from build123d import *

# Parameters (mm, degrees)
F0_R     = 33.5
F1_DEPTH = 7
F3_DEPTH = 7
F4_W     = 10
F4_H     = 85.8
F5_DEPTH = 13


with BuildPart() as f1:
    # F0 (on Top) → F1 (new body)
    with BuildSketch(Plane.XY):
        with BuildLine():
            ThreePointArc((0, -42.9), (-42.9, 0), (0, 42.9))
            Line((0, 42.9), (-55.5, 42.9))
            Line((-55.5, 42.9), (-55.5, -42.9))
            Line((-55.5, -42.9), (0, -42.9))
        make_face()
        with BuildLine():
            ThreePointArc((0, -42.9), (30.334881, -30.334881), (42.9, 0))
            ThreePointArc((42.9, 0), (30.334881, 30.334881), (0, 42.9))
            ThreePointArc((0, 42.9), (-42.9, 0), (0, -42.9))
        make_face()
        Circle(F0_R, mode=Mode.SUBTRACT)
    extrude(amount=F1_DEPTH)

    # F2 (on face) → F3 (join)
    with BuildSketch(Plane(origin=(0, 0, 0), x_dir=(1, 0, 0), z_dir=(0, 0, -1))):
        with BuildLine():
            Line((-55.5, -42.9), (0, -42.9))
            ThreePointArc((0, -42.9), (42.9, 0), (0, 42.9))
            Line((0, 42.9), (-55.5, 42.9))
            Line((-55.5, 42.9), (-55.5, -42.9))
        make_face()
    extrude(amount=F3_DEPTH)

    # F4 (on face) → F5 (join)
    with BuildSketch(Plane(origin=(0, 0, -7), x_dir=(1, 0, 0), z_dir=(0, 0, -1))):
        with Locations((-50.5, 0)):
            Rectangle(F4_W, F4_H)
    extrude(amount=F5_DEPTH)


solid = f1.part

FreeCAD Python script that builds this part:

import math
import FreeCAD as App
import Part
import Sketcher

V = App.Vector
Q = App.Units.Quantity

doc = App.newDocument("Part")
body = doc.addObject("PartDesign::Body", "Body")

sketch1 = body.newObject("Sketcher::SketchObject", "Sketch")
sketch1.AttachmentSupport = (doc.getObject("XY_Plane"), [""])
sketch1.MapMode = "FlatFace"
sketch1.addGeometry([
    Part.LineSegment(V(0, 43, 0), V(-56, 43, 0)),
    Part.LineSegment(V(-56, 43, 0), V(-56, -43, 0)),
    Part.LineSegment(V(-56, -43, 0), V(0, -43, 0)),
    Part.ArcOfCircle(Part.Circle(V(0, 0, 0), V(0, 0, 1), 43), math.radians(-90), math.radians(0)),
    Part.ArcOfCircle(Part.Circle(V(0, 0, 0), V(0, 0, 1), 43), math.radians(0), math.radians(90)),
    Part.Circle(V(0, 0, 0), V(0, 0, 1), 34),
], False)
sketch1.addConstraint([
    Sketcher.Constraint("Coincident", 0, 2, 1, 1),
    Sketcher.Constraint("Coincident", 1, 2, 2, 1),
    Sketcher.Constraint("Tangent", 2, 2, 3, 1),
    Sketcher.Constraint("Tangent", 3, 2, 4, 1),
    Sketcher.Constraint("Tangent", 4, 2, 0, 1),
    Sketcher.Constraint("Horizontal", 0),
    Sketcher.Constraint("Vertical", 1),
    Sketcher.Constraint("Horizontal", 2),
    Sketcher.Constraint("Coincident", 3, 3, -1, 1),
    Sketcher.Constraint("Coincident", 5, 3, -1, 1),
    Sketcher.Constraint("Equal", 3, 4),
    Sketcher.Constraint("PointOnObject", 3, 2, -1),
    Sketcher.Constraint("Diameter", 5, Q("67 mm")),
    Sketcher.Constraint("Radius", 3, Q("42.9 mm")),
    Sketcher.Constraint("DistanceX", 0, 2, 0, 1, Q("55.5 mm")),
])
pad1 = body.newObject("PartDesign::Pad", "Pad")
pad1.Profile = sketch1
pad1.Length = 7

sketch2 = body.newObject("Sketcher::SketchObject", "Sketch001")
sketch2.AttachmentSupport = (doc.getObject("XY_Plane"), [""])
sketch2.MapMode = "FlatFace"
sketch2.addGeometry([
    Part.LineSegment(V(-56, 43, 0), V(0, 43, 0)),
    Part.ArcOfCircle(Part.Circle(V(0, 0, 0), V(0, 0, 1), 43), math.radians(-90), math.radians(90)),
    Part.LineSegment(V(0, -43, 0), V(-56, -43, 0)),
    Part.LineSegment(V(-56, -43, 0), V(-56, 43, 0)),
], False)
sketch2.addConstraint([
    Sketcher.Constraint("Tangent", 0, 2, 1, 2),
    Sketcher.Constraint("Tangent", 1, 1, 2, 1),
    Sketcher.Constraint("Coincident", 2, 2, 3, 1),
    Sketcher.Constraint("Coincident", 3, 2, 0, 1),
    Sketcher.Constraint("Horizontal", 0),
    Sketcher.Constraint("Horizontal", 2),
    Sketcher.Constraint("Vertical", 3),
    Sketcher.Constraint("Coincident", 1, 3, -1, 1),
    Sketcher.Constraint("Radius", 1, Q("42.9 mm")),
    Sketcher.Constraint("DistanceX", 0, 1, 0, 2, Q("55.5 mm")),
])
pad2 = body.newObject("PartDesign::Pad", "Pad001")
pad2.Profile = sketch2
pad2.Length = 7
pad2.Reversed = True

sketch3 = body.newObject("Sketcher::SketchObject", "Sketch002")
sketch3.AttachmentSupport = (doc.getObject("XY_Plane"), [""])
sketch3.MapMode = "FlatFace"
sketch3.AttachmentOffset = App.Placement(V(0, 0, -7), App.Rotation())
sketch3.addGeometry([
    Part.LineSegment(V(-56, -43, 0), V(-56, 43, 0)),
    Part.LineSegment(V(-56, 43, 0), V(-46, 43, 0)),
    Part.LineSegment(V(-46, 43, 0), V(-46, -43, 0)),
    Part.LineSegment(V(-46, -43, 0), V(-56, -43, 0)),
], False)
sketch3.addConstraint([
    Sketcher.Constraint("Coincident", 0, 2, 1, 1),
    Sketcher.Constraint("Coincident", 1, 2, 2, 1),
    Sketcher.Constraint("Coincident", 2, 2, 3, 1),
    Sketcher.Constraint("Coincident", 3, 2, 0, 1),
    Sketcher.Constraint("Vertical", 0),
    Sketcher.Constraint("Horizontal", 1),
    Sketcher.Constraint("Vertical", 2),
    Sketcher.Constraint("Horizontal", 3),
    Sketcher.Constraint("DistanceX", 1, 1, 1, 2, Q("10 mm")),
    Sketcher.Constraint("DistanceY", 0, 1, 0, 2, Q("85.8 mm")),
    Sketcher.Constraint("DistanceX", 0, 2, -1, 1, Q("55.5 mm")),
    Sketcher.Constraint("DistanceY", -1, 1, 0, 2, Q("42.9 mm")),
])
pad3 = body.newObject("PartDesign::Pad", "Pad002")
pad3.Profile = sketch3
pad3.Length = 13
pad3.Reversed = True

doc.recompute()
